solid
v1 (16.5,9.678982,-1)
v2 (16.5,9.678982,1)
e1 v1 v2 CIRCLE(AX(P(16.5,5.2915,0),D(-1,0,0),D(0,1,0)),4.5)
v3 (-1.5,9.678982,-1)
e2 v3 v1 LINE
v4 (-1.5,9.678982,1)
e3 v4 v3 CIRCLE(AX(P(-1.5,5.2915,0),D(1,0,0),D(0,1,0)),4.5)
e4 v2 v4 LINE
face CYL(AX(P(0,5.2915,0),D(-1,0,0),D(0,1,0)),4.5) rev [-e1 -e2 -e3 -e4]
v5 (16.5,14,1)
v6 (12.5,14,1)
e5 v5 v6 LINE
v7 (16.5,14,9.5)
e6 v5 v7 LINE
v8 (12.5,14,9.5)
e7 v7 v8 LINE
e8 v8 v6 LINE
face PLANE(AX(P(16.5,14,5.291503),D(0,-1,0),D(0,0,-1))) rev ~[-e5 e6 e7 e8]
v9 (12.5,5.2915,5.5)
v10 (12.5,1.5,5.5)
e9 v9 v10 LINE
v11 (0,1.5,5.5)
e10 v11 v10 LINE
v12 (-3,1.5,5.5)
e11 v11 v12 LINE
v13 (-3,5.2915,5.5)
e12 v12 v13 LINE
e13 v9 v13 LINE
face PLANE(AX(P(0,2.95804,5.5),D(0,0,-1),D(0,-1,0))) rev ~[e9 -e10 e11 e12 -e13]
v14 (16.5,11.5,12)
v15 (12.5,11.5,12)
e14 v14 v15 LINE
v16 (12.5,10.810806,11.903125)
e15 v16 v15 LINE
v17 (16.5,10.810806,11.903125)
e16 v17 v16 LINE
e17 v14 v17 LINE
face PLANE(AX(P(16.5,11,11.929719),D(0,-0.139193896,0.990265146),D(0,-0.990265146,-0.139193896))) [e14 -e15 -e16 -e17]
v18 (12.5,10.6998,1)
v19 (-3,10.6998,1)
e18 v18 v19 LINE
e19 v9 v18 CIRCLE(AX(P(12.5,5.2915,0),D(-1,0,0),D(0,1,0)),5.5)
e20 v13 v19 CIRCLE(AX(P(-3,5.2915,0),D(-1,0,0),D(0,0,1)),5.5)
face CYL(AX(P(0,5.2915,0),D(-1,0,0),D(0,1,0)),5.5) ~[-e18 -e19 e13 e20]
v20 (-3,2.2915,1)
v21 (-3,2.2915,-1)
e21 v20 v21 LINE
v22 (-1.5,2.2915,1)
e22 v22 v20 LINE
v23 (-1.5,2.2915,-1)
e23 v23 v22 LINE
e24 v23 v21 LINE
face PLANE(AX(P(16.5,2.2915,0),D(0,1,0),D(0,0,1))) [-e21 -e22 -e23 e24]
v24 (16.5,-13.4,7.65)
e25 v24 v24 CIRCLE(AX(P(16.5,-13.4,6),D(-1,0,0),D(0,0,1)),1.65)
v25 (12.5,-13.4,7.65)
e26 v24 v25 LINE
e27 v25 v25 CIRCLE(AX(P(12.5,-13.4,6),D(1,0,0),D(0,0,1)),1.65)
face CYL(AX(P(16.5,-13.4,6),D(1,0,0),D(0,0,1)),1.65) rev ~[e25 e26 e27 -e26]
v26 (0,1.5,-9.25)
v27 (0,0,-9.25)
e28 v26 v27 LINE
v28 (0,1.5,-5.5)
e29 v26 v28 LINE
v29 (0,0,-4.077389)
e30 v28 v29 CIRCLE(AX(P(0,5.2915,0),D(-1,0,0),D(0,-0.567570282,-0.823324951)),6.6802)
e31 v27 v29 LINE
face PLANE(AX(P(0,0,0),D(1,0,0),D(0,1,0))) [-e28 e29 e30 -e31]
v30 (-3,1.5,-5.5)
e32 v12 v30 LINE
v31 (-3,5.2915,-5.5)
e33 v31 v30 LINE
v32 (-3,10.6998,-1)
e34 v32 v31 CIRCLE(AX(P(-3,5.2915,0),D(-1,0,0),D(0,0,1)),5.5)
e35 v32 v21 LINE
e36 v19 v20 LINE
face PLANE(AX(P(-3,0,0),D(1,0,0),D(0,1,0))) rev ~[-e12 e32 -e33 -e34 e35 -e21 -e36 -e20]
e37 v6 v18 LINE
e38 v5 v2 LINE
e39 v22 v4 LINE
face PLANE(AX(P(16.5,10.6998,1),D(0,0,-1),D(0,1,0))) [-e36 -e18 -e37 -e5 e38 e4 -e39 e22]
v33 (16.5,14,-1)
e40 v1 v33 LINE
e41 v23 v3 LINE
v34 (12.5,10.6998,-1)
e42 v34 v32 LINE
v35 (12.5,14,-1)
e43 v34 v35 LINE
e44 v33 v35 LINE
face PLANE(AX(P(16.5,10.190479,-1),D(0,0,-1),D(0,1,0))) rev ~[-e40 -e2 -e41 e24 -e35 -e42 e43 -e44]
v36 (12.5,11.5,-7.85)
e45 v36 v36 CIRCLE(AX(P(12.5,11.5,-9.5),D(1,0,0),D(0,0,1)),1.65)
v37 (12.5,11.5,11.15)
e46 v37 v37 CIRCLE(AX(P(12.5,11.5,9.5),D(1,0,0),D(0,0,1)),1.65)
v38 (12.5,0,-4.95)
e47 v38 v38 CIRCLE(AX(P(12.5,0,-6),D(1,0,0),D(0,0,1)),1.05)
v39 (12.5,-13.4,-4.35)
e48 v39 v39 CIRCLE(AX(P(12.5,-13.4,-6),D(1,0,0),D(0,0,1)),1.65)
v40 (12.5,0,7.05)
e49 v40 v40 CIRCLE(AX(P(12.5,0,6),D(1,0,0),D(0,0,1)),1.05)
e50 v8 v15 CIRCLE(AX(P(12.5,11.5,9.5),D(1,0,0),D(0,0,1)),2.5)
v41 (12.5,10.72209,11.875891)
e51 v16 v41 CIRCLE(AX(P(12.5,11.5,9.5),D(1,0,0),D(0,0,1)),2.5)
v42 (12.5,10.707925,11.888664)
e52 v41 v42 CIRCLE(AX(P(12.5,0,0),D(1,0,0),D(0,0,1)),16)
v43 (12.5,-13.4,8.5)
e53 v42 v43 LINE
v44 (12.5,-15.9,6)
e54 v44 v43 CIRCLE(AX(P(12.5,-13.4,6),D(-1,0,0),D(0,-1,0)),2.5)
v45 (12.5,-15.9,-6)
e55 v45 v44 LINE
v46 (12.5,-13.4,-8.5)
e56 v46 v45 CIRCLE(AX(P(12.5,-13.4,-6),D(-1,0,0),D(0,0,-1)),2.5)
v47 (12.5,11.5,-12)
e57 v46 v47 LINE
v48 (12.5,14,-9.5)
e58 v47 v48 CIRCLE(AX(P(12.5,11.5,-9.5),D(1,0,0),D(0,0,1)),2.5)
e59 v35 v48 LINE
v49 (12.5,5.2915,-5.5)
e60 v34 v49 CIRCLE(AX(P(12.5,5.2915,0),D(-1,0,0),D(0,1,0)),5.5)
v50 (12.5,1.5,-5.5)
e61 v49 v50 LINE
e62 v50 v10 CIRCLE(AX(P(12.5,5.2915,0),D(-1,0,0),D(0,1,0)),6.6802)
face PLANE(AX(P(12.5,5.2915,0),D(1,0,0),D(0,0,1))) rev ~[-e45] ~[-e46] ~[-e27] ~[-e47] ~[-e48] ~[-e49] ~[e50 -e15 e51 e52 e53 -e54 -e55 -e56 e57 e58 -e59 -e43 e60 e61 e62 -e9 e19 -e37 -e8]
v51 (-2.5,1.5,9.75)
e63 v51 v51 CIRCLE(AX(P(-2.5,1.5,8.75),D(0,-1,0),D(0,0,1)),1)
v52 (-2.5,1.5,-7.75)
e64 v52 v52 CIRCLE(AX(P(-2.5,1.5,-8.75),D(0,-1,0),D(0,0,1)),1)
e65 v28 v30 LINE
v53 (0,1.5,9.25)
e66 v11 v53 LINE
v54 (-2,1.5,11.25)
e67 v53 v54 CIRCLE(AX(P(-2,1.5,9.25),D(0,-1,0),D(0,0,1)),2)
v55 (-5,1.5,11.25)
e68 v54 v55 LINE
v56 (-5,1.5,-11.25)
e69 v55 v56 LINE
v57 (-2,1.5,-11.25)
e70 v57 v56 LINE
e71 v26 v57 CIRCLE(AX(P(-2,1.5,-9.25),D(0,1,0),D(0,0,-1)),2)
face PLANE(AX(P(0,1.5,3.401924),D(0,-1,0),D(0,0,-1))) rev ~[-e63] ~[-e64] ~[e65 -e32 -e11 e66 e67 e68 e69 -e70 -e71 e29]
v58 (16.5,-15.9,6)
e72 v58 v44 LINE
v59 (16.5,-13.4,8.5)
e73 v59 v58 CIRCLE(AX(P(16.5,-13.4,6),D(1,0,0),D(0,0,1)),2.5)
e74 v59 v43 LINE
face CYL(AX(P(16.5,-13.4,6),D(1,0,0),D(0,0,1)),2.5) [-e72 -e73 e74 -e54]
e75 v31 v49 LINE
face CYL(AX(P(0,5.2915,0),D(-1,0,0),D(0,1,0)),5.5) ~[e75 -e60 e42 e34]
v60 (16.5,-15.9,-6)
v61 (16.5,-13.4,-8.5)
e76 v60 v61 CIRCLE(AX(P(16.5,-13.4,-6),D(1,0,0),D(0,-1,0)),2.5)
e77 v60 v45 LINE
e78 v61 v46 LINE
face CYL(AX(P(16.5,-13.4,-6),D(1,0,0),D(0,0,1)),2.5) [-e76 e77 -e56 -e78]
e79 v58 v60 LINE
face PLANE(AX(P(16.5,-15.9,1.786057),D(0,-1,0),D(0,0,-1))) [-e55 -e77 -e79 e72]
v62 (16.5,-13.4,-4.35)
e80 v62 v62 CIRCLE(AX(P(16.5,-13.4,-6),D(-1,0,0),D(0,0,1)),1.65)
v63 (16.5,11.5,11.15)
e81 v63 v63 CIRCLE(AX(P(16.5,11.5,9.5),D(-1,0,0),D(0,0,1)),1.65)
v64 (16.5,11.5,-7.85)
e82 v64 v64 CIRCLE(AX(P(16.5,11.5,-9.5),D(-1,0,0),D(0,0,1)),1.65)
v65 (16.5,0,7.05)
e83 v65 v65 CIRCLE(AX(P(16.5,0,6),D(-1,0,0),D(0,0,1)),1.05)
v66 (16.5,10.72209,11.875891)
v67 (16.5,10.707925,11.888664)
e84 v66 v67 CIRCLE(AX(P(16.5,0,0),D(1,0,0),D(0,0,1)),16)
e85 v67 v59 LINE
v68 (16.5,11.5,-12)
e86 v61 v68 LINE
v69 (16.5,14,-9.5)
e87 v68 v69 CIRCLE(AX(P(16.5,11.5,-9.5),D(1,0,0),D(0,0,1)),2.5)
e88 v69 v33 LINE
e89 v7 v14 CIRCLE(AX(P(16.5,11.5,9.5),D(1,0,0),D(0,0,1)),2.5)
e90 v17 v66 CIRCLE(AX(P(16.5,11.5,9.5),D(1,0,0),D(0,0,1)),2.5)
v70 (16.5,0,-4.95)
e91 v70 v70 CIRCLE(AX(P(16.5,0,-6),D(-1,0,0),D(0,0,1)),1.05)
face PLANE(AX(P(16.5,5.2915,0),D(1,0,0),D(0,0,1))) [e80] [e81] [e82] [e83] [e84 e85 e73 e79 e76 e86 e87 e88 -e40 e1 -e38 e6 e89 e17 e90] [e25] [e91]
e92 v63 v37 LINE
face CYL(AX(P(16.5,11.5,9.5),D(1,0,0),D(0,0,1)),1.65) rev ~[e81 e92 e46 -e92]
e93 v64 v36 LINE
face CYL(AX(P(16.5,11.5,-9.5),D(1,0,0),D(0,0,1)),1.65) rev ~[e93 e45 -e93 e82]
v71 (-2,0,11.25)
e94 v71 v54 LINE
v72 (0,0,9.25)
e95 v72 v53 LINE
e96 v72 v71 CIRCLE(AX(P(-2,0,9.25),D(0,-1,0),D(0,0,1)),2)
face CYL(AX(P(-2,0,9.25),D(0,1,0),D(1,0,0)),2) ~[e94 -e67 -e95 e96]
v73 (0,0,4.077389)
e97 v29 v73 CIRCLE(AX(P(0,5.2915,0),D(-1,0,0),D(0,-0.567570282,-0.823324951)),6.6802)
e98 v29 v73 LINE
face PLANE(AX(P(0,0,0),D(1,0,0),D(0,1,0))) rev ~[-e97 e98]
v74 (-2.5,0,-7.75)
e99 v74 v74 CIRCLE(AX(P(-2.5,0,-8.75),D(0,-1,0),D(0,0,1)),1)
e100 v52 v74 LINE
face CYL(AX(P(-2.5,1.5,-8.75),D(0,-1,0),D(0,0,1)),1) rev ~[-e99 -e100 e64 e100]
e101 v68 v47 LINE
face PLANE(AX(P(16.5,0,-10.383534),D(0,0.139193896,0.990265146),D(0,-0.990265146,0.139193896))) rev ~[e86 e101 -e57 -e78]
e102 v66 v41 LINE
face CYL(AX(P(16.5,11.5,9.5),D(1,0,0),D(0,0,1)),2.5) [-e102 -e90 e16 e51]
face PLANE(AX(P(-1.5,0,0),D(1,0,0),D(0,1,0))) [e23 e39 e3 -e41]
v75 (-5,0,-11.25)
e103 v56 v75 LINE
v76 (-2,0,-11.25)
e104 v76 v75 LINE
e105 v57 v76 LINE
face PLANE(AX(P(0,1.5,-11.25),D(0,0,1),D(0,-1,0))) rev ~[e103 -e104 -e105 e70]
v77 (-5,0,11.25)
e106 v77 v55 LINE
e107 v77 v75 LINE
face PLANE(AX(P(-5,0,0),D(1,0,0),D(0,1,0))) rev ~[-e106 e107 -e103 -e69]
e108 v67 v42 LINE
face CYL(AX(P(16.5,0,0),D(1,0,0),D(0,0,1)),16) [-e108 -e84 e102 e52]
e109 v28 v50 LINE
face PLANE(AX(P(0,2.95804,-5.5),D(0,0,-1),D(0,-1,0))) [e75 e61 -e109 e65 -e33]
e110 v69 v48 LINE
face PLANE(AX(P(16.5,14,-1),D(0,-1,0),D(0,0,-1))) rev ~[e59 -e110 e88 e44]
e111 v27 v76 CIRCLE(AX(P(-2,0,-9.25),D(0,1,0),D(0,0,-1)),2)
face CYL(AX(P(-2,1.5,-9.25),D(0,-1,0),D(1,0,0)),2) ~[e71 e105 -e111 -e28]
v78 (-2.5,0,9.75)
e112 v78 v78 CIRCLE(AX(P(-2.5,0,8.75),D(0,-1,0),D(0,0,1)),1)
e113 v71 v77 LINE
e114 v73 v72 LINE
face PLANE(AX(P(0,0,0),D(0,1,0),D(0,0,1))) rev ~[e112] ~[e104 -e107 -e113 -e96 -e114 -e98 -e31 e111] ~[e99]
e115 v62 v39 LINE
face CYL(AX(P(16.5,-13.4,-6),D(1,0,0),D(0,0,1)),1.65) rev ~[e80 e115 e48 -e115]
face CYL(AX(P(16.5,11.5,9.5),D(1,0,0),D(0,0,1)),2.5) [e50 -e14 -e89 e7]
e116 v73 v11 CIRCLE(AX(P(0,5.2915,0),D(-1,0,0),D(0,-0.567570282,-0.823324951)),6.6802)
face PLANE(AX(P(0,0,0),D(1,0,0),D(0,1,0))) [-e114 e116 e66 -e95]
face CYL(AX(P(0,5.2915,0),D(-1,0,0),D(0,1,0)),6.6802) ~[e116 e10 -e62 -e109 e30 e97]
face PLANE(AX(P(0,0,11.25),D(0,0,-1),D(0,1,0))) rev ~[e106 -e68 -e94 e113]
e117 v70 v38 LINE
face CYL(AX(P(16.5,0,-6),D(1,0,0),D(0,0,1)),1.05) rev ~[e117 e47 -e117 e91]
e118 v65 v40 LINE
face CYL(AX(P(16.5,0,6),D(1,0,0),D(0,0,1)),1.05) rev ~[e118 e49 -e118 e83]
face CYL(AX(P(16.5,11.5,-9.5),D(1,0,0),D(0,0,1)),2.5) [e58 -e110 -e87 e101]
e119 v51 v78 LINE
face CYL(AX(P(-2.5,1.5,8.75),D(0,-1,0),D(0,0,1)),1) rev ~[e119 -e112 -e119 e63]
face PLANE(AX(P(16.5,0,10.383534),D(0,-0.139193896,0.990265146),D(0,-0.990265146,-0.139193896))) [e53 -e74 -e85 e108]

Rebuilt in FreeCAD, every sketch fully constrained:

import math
import FreeCAD as App
import Part
import Sketcher


def edges_at(feature, points):
    """Names of the edges that pass closest to the given points."""
    edges = feature.Shape.Edges
    near = lambda p: min(range(len(edges)), key=lambda i: edges[i].distToShape(Part.Vertex(*p))[0])
    return sorted({f"Edge{near(p) + 1}" for p in points})


def add_polygon(sketch, points):
    """Adds a closed chain of lines whose ends are joined by coincident constraints."""
    first, n = sketch.GeometryCount, len(points)
    for a, b in zip(points, points[1:] + points[:1]):
        sketch.addGeometry(Part.LineSegment(App.Vector(*a, 0), App.Vector(*b, 0)), False)
    for i in range(n):
        sketch.addConstraint(Sketcher.Constraint("Coincident", first + i, 2, first + (i + 1) % n, 1))

doc = App.newDocument("Part")
body = doc.addObject("PartDesign::Body", "Body")

sketch1 = body.newObject("Sketcher::SketchObject", "Sketch")
sketch1.AttachmentSupport = (doc.getObject("YZ_Plane"), [""])
sketch1.MapMode = "FlatFace"
add_polygon(sketch1, [(0, -11.2), (1.5, -11.2), (1.5, 11.2), (0, 11.2)])
sketch1.addConstraint([
    Sketcher.Constraint("Horizontal", 0),
    Sketcher.Constraint("Vertical", 1),
    Sketcher.Constraint("Horizontal", 2),
    Sketcher.Constraint("Vertical", 3),
    Sketcher.Constraint("Symmetric", 2, 2, 3, 2, -1, 1),
    Sketcher.Constraint("DistanceX", 0, 1, 0, 2, 1.5),
    Sketcher.Constraint("DistanceY", 1, 1, 1, 2, 22.5),
])
pad1 = body.newObject("PartDesign::Pad", "Pad")
pad1.Profile = sketch1
pad1.Length = 5
pad1.Reversed = True

sketch2 = body.newObject("Sketcher::SketchObject", "Sketch001")
sketch2.AttachmentSupport = (doc.getObject("YZ_Plane"), [""])
sketch2.MapMode = "FlatFace"
sketch2.addGeometry([
    Part.LineSegment(App.Vector(0, 1.5, 0), App.Vector(0, -1.5, 0)),
    Part.ArcOfCircle(Part.Circle(App.Vector(5.3, 0, 0), App.Vector(0, 0, 1), 5.5), math.radians(-164), math.radians(-134)),
    Part.LineSegment(App.Vector(1.5, -4, 0), App.Vector(1.5, -5.5, 0)),
    Part.LineSegment(App.Vector(1.5, -5.5, 0), App.Vector(5.3, -5.5, 0)),
    Part.ArcOfCircle(Part.Circle(App.Vector(5.3, 0, 0), App.Vector(0, 0, 1), 5.5), math.radians(-90), math.radians(90)),
    Part.LineSegment(App.Vector(5.3, 5.5, 0), App.Vector(1.5, 5.5, 0)),
    Part.LineSegment(App.Vector(1.5, 5.5, 0), App.Vector(1.5, 4, 0)),
    Part.ArcOfCircle(Part.Circle(App.Vector(5.3, 0, 0), App.Vector(0, 0, 1), 5.5), math.radians(134), math.radians(164)),
], False)
sketch2.addConstraint([
    Sketcher.Constraint("Coincident", 0, 2, 1, 1),
    Sketcher.Constraint("Coincident", 1, 2, 2, 1),
    Sketcher.Constraint("Coincident", 2, 2, 3, 1),
    Sketcher.Constraint("Tangent", 3, 2, 4, 1),
    Sketcher.Constraint("Tangent", 4, 2, 5, 1),
    Sketcher.Constraint("Coincident", 5, 2, 6, 1),
    Sketcher.Constraint("Coincident", 6, 2, 7, 1),
    Sketcher.Constraint("Coincident", 7, 2, 0, 1),
    Sketcher.Constraint("Vertical", 0),
    Sketcher.Constraint("Vertical", 2),
    Sketcher.Constraint("Horizontal", 3),
    Sketcher.Constraint("Horizontal", 5),
    Sketcher.Constraint("Vertical", 6),
    Sketcher.Constraint("Coincident", 4, 3, 1, 3),
    Sketcher.Constraint("Coincident", 7, 3, 1, 3),
    Sketcher.Constraint("Equal", 1, 4),
    Sketcher.Constraint("Equal", 4, 7),
    Sketcher.Constraint("Symmetric", 0, 2, 7, 2, -1, 1),
    Sketcher.Constraint("Vertical", 2, 2, 5, 2),
    Sketcher.Constraint("Radius", 1, 5.5),
    Sketcher.Constraint("DistanceY", 0, 2, -1, 1, 1.5),
    Sketcher.Constraint("DistanceX", -1, 1, 1, 2, 1.5),
])
pad2 = body.newObject("PartDesign::Pad", "Pad001")
pad2.Profile = sketch2
pad2.Length = 3
pad2.Reversed = True

sketch3 = body.newObject("Sketcher::SketchObject", "Sketch002")
sketch3.AttachmentSupport = (doc.getObject("YZ_Plane"), [""])
sketch3.MapMode = "FlatFace"
sketch3.addGeometry([
    Part.LineSegment(App.Vector(1.5, -5.5, 0), App.Vector(5.3, -5.5, 0)),
    Part.ArcOfCircle(Part.Circle(App.Vector(5.3, 0, 0), App.Vector(0, 0, 1), 5.5), math.radians(-90), math.radians(90)),
    Part.LineSegment(App.Vector(5.3, 5.5, 0), App.Vector(1.5, 5.5, 0)),
    Part.ArcOfCircle(Part.Circle(App.Vector(5.3, 0, 0), App.Vector(0, 0, 1), 6.7), math.radians(125), math.radians(235)),
], False)
sketch3.addConstraint([
    Sketcher.Constraint("Tangent", 0, 2, 1, 1),
    Sketcher.Constraint("Tangent", 1, 2, 2, 1),
    Sketcher.Constraint("Coincident", 2, 2, 3, 1),
    Sketcher.Constraint("Coincident", 3, 2, 0, 1),
    Sketcher.Constraint("Horizontal", 0),
    Sketcher.Constraint("Horizontal", 2),
    Sketcher.Constraint("Coincident", 3, 3, 1, 3),
    Sketcher.Constraint("PointOnObject", 1, 3, -1),
    Sketcher.Constraint("Radius", 1, 5.5),
    Sketcher.Constraint("DistanceX", -1, 1, 2, 2, 1.5),
    Sketcher.Constraint("Radius", 3, 6.6802),
])
pad3 = body.newObject("PartDesign::Pad", "Pad002")
pad3.Profile = sketch3
pad3.Length = 16.5

sketch4 = body.newObject("Sketcher::SketchObject", "Sketch003")
sketch4.AttachmentSupport = (doc.getObject("YZ_Plane"), [""])
sketch4.MapMode = "FlatFace"
sketch4.addGeometry(Part.Circle(App.Vector(5.3, 0, 0), App.Vector(0, 0, 1), 4.5), False)
sketch4.addConstraint([
    Sketcher.Constraint("PointOnObject", 0, 3, -1),
    Sketcher.Constraint("Diameter", 0, 9.0),
    Sketcher.Constraint("DistanceX", -1, 1, 0, 3, 5.2915),
])
pocket1 = body.newObject("PartDesign::Pocket", "Pocket")
pocket1.Profile = sketch4
pocket1.Length = 16.5
pocket1.Reversed = True

sketch5 = body.newObject("Sketcher::SketchObject", "Sketch004")
sketch5.AttachmentSupport = (doc.getObject("YZ_Plane"), [""])
sketch5.MapMode = "FlatFace"
sketch5.addGeometry(Part.Circle(App.Vector(5.3, 0, 0), App.Vector(0, 0, 1), 4.5), False)
sketch5.addConstraint([
    Sketcher.Constraint("PointOnObject", 0, 3, -1),
    Sketcher.Constraint("Diameter", 0, 9.0),
    Sketcher.Constraint("DistanceX", -1, 1, 0, 3, 5.2915),
])
pocket2 = body.newObject("PartDesign::Pocket", "Pocket001")
pocket2.Profile = sketch5
pocket2.Length = 1.5

sketch6 = body.newObject("Sketcher::SketchObject", "Sketch005")
sketch6.AttachmentSupport = (doc.getObject("YZ_Plane"), [""])
sketch6.MapMode = "FlatFace"
sketch6.AttachmentOffset = App.Placement(App.Vector(0, 0, 16.5), App.Rotation())
sketch6.addGeometry([
    Part.LineSegment(App.Vector(2.3, 1, 0), App.Vector(2.3, -1, 0)),
    Part.LineSegment(App.Vector(2.3, -1, 0), App.Vector(10.7, -1, 0)),
    Part.ArcOfCircle(Part.Circle(App.Vector(5.3, 0, 0), App.Vector(0, 0, 1), 5.5), math.radians(-10), math.radians(10)),
    Part.LineSegment(App.Vector(10.7, 1, 0), App.Vector(2.3, 1, 0)),
], False)
sketch6.addConstraint([
    Sketcher.Constraint("Coincident", 0, 2, 1, 1),
    Sketcher.Constraint("Coincident", 1, 2, 2, 1),
    Sketcher.Constraint("Coincident", 2, 2, 3, 1),
    Sketcher.Constraint("Coincident", 3, 2, 0, 1),
    Sketcher.Constraint("Vertical", 0),
    Sketcher.Constraint("Horizontal", 1),
    Sketcher.Constraint("Horizontal", 3),
    Sketcher.Constraint("Symmetric", 1, 2, 2, 2, -1),
    Sketcher.Constraint("Radius", 2, 5.5),
    Sketcher.Constraint("DistanceY", 0, 2, 0, 1, 2.0),
    Sketcher.Constraint("DistanceX", 0, 2, 2, 3, 3.0),
    Sketcher.Constraint("DistanceX", -1, 1, 2, 3, 5.2915),
])
pocket3 = body.newObject("PartDesign::Pocket", "Pocket002")
pocket3.Profile = sketch6
pocket3.Length = 19.5

sketch7 = body.newObject("Sketcher::SketchObject", "Sketch006")
sketch7.AttachmentSupport = (doc.getObject("XZ_Plane"), [""])
sketch7.MapMode = "FlatFace"
sketch7.AttachmentOffset = App.Placement(App.Vector(0, 0, -1.5), App.Rotation())
sketch7.addGeometry([
    Part.Circle(App.Vector(-2.5, -8.8, 0), App.Vector(0, 0, 1), 1),
    Part.Circle(App.Vector(-2.5, 8.8, 0), App.Vector(0, 0, 1), 1),
], False)
sketch7.addConstraint([
    Sketcher.Constraint("Equal", 0, 1),
    Sketcher.Constraint("Symmetric", 0, 3, 1, 3, -1),
    Sketcher.Constraint("Diameter", 0, 2.0),
    Sketcher.Constraint("DistanceX", 0, 3, -1, 1, 2.5),
    Sketcher.Constraint("DistanceY", 0, 3, 1, 3, 17.5),
])
doc.recompute()
hole = body.newObject("PartDesign::Hole", "Hole")
hole.Profile = sketch7
hole.ThreadType = "None"
hole.Diameter = 2
hole.DepthType = "ThroughAll"
hole.Reversed = True
doc.recompute()

fillet = body.newObject("PartDesign::Fillet", "Fillet")
fillet.Base = (hole, edges_at(hole, [(0, 0.75, -11.25), (0, 0.75, 11.25)]))
fillet.Radius = 2

sketch8 = body.newObject("Sketcher::SketchObject", "Sketch007")
sketch8.AttachmentSupport = (doc.getObject("YZ_Plane"), [""])
sketch8.MapMode = "FlatFace"
sketch8.AttachmentOffset = App.Placement(App.Vector(0, 0, 16.5), App.Rotation())
sketch8.addGeometry([
    Part.ArcOfCircle(Part.Circle(App.Vector(-13.4, 6, 0), App.Vector(0, 0, 1), 2.5), math.radians(90), math.radians(180)),
    Part.LineSegment(App.Vector(-15.9, 6, 0), App.Vector(-15.9, -6, 0)),
    Part.ArcOfCircle(Part.Circle(App.Vector(-13.4, -6, 0), App.Vector(0, 0, 1), 2.5), math.radians(180), math.radians(270)),
    Part.LineSegment(App.Vector(-13.4, -8.5, 0), App.Vector(11.5, -12, 0)),
    Part.ArcOfCircle(Part.Circle(App.Vector(11.5, -9.5, 0), App.Vector(0, 0, 1), 2.5), math.radians(-90), math.radians(0)),
    Part.LineSegment(App.Vector(14, -9.5, 0), App.Vector(14, -1, 0)),
    Part.LineSegment(App.Vector(14, -1, 0), App.Vector(9.679, -1, 0)),
    Part.ArcOfCircle(Part.Circle(App.Vector(5.292, 0, 0), App.Vector(0, 0, 1), 4.5), math.radians(13), math.radians(347)),
    Part.LineSegment(App.Vector(9.679, 1, 0), App.Vector(14, 1, 0)),
    Part.LineSegment(App.Vector(14, 1, 0), App.Vector(14, 9.5, 0)),
    Part.ArcOfCircle(Part.Circle(App.Vector(11.5, 9.5, 0), App.Vector(0, 0, 1), 2.5), math.radians(0), math.radians(90)),
    Part.LineSegment(App.Vector(11.5, 12, 0), App.Vector(10.811, 11.903, 0)),
    Part.ArcOfCircle(Part.Circle(App.Vector(11.5, 9.5, 0), App.Vector(0, 0, 1), 2.5), math.radians(106), math.radians(108.13)),
    Part.ArcOfCircle(Part.Circle(App.Vector(0, 0, 0), App.Vector(0, 0, 1), 16), math.radians(47.92), math.radians(47.99)),
    Part.LineSegment(App.Vector(10.708, 11.889, 0), App.Vector(-13.4, 8.5, 0)),
    Part.Circle(App.Vector(0, 6, 0), App.Vector(0, 0, 1), 1.05),
    Part.Circle(App.Vector(0, -6, 0), App.Vector(0, 0, 1), 1.05),
    Part.Circle(App.Vector(11.5, 9.5, 0), App.Vector(0, 0, 1), 1.65),
    Part.Circle(App.Vector(11.5, -9.5, 0), App.Vector(0, 0, 1), 1.65),
    Part.Circle(App.Vector(-13.4, -6, 0), App.Vector(0, 0, 1), 1.65),
    Part.Circle(App.Vector(-13.4, 6, 0), App.Vector(0, 0, 1), 1.65),
], False)
sketch8.addConstraint([
    Sketcher.Constraint("Tangent", 0, 2, 1, 1),
    Sketcher.Constraint("Tangent", 1, 2, 2, 1),
    Sketcher.Constraint("Coincident", 2, 2, 3, 1),
    Sketcher.Constraint("Coincident", 3, 2, 4, 1),
    Sketcher.Constraint("Tangent", 4, 2, 5, 1),
    Sketcher.Constraint("Coincident", 5, 2, 6, 1),
    Sketcher.Constraint("Coincident", 6, 2, 7, 2),
    Sketcher.Constraint("Coincident", 7, 1, 8, 1),
    Sketcher.Constraint("Coincident", 8, 2, 9, 1),
    Sketcher.Constraint("Tangent", 9, 2, 10, 1),
    Sketcher.Constraint("Coincident", 10, 2, 11, 1),
    Sketcher.Constraint("Coincident", 11, 2, 12, 1),
    Sketcher.Constraint("Coincident", 12, 2, 13, 1),
    Sketcher.Constraint("Coincident", 13, 2, 14, 1),
    Sketcher.Constraint("Coincident", 14, 2, 0, 1),
    Sketcher.Constraint("Vertical", 1),
    Sketcher.Constraint("Vertical", 5),
    Sketcher.Constraint("Horizontal", 6),
    Sketcher.Constraint("Horizontal", 8),
    Sketcher.Constraint("Vertical", 9),
    Sketcher.Constraint("Coincident", 13, 3, -1, 1),
    Sketcher.Constraint("Coincident", 12, 3, 10, 3),
    Sketcher.Constraint("Coincident", 17, 3, 10, 3),
    Sketcher.Constraint("Coincident", 18, 3, 4, 3),
    Sketcher.Constraint("Coincident", 19, 3, 2, 3),
    Sketcher.Constraint("Coincident", 20, 3, 0, 3),
    Sketcher.Constraint("Equal", 0, 2),
    Sketcher.Constraint("Equal", 2, 4),
    Sketcher.Constraint("Equal", 4, 10),
    Sketcher.Constraint("Equal", 10, 12),
    Sketcher.Constraint("Equal", 15, 16),
    Sketcher.Constraint("Equal", 17, 18),
    Sketcher.Constraint("Equal", 18, 19),
    Sketcher.Constraint("Equal", 19, 20),
    Sketcher.Constraint("Symmetric", 15, 3, 16, 3, -1, 1),
    Sketcher.Constraint("Symmetric", 4, 3, 10, 3, -1),
    Sketcher.Constraint("Symmetric", 6, 2, 7, 1, -1),
    Sketcher.Constraint("Symmetric", 2, 2, 14, 2, -1),
    Sketcher.Constraint("PointOnObject", 15, 3, -2),
    Sketcher.Constraint("Parallel", 11, 14),
    Sketcher.Constraint("Horizontal", 0, 3, 15, 3),
    Sketcher.Constraint("Vertical", 20, 3, 2, 2),
    Sketcher.Constraint("Vertical", 18, 3, 3, 2),
    Sketcher.Constraint("Vertical", 3, 2, 10, 2),
    Sketcher.Constraint("Radius", 13, 16.0),
    Sketcher.Constraint("Diameter", 15, 2.1),
    Sketcher.Constraint("Diameter", 17, 3.3),
    Sketcher.Constraint("Radius", 0, 2.5),
    Sketcher.Constraint("DistanceY", 1, 2, 1, 1, 12.0),
    Sketcher.Constraint("DistanceY", 3, 2, -1, 1, 12.0),
    Sketcher.Constraint("DistanceY", 5, 2, -1, 1, 1.0),
    Sketcher.Constraint("Radius", 7, 4.5),
    Sketcher.Constraint("DistanceX", -1, 1, 4, 2, 14.0),
    Sketcher.Constraint("DistanceX", 0, 3, -1, 1, 13.4),
    Sketcher.Constraint("DistanceX", 6, 2, 6, 1, 4.321),
    Sketcher.Constraint("Distance", 11, 0.696),
])
pad4 = body.newObject("PartDesign::Pad", "Pad003")
pad4.Profile = sketch8
pad4.Length = 4
pad4.Reversed = True

doc.recompute()
